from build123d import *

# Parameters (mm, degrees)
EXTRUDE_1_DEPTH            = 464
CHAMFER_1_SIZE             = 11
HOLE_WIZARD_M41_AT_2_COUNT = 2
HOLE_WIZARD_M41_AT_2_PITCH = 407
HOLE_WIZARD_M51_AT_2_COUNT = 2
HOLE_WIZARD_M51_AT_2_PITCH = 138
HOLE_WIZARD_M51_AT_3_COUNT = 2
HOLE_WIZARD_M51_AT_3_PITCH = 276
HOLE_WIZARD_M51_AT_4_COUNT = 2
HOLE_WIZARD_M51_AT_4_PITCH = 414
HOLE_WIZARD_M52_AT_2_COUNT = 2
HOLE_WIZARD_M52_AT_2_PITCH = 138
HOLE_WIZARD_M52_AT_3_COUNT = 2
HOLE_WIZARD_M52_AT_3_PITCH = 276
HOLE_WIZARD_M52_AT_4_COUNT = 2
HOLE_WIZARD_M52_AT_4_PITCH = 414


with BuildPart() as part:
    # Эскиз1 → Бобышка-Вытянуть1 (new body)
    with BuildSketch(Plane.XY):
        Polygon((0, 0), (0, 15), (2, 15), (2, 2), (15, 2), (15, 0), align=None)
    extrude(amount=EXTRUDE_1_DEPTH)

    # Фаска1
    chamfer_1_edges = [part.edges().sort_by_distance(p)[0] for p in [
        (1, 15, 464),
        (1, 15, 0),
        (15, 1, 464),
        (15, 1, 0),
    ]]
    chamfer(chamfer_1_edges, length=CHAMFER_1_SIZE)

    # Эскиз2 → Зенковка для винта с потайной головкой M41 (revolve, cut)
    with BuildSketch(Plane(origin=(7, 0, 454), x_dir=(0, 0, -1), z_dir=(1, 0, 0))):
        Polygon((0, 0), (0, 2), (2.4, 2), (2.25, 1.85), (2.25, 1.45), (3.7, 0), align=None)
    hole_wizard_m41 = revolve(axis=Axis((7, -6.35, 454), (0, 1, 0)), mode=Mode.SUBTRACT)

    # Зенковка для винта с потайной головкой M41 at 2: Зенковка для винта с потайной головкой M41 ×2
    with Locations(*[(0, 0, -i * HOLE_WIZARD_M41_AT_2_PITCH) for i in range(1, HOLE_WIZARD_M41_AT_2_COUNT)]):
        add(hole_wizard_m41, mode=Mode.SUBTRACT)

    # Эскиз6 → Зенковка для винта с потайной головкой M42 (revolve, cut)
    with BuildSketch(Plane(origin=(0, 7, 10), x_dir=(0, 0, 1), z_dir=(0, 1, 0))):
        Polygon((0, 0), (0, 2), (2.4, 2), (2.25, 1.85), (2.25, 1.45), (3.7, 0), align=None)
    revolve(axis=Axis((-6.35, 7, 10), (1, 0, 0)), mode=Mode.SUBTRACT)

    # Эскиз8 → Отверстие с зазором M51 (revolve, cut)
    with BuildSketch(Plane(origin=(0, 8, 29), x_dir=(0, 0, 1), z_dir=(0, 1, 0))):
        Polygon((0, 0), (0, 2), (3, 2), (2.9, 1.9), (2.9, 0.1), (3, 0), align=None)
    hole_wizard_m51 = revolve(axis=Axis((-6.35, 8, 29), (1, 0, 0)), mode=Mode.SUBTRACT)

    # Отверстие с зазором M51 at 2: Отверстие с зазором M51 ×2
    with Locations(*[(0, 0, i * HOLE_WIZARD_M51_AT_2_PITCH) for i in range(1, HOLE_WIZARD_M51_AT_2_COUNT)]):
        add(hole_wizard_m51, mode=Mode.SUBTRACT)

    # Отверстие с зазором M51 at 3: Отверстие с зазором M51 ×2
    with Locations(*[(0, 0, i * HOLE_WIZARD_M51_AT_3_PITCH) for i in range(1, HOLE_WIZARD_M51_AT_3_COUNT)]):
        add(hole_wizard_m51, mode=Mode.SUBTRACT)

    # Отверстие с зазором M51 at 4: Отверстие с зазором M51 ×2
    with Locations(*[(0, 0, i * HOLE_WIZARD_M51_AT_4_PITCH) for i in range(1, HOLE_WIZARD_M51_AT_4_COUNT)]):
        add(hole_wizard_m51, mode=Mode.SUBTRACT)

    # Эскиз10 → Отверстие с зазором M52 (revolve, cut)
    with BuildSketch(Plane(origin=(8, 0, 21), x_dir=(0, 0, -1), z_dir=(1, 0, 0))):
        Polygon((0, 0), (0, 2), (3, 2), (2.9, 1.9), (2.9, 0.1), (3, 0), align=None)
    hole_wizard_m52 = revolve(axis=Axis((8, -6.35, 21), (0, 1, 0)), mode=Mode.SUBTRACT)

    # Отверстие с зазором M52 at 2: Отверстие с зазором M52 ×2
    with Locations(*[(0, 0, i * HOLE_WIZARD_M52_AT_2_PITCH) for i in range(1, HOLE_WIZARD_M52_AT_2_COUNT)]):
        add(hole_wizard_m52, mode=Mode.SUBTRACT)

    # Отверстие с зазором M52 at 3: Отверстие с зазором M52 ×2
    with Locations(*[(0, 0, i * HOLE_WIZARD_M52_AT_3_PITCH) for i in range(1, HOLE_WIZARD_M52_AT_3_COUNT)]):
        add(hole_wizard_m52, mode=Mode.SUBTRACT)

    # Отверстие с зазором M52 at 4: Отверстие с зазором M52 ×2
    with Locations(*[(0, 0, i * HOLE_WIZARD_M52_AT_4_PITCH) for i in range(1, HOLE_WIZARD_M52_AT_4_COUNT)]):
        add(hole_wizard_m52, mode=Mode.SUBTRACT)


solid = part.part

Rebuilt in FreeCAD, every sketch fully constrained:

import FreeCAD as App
import Part
import Sketcher
Q = App.Units.Quantity


def edges_at(feature, points):
    """Names of the edges that pass closest to the given points."""
    edges = feature.Shape.Edges
    near = lambda p: min(range(len(edges)), key=lambda i: edges[i].distToShape(Part.Vertex(*p))[0])
    return sorted({f"Edge{near(p) + 1}" for p in points})

doc = App.newDocument("Part")
body = doc.addObject("PartDesign::Body", "Body")

sketch1 = body.newObject("Sketcher::SketchObject", "Sketch")
sketch1.AttachmentSupport = (doc.getObject("XY_Plane"), [""])
sketch1.MapMode = "FlatFace"
sketch1.addGeometry([
    Part.LineSegment(App.Vector(0, 15, 0), App.Vector(0, 0, 0)),
    Part.LineSegment(App.Vector(0, 0, 0), App.Vector(15, 0, 0)),
    Part.LineSegment(App.Vector(15, 0, 0), App.Vector(15, 2, 0)),
    Part.LineSegment(App.Vector(15, 2, 0), App.Vector(2, 2, 0)),
    Part.LineSegment(App.Vector(2, 2, 0), App.Vector(2, 15, 0)),
    Part.LineSegment(App.Vector(2, 15, 0), App.Vector(0, 15, 0)),
], False)
sketch1.addConstraint([
    Sketcher.Constraint("Coincident", 0, 2, 1, 1),
    Sketcher.Constraint("Coincident", 1, 2, 2, 1),
    Sketcher.Constraint("Coincident", 2, 2, 3, 1),
    Sketcher.Constraint("Coincident", 3, 2, 4, 1),
    Sketcher.Constraint("Coincident", 4, 2, 5, 1),
    Sketcher.Constraint("Coincident", 5, 2, 0, 1),
    Sketcher.Constraint("Vertical", 0),
    Sketcher.Constraint("Horizontal", 1),
    Sketcher.Constraint("Vertical", 2),
    Sketcher.Constraint("Horizontal", 3),
    Sketcher.Constraint("Vertical", 4),
    Sketcher.Constraint("Horizontal", 5),
    Sketcher.Constraint("Coincident", 0, 2, -1, 1),
    Sketcher.Constraint("Equal", 1, 0),
    Sketcher.Constraint("Equal", 5, 2),
    Sketcher.Constraint("DistanceX", 1, 1, 1, 2, Q("15 mm")),
    Sketcher.Constraint("DistanceX", 3, 2, 3, 1, Q("13 mm")),
])
pad1 = body.newObject("PartDesign::Pad", "Pad")
pad1.Profile = sketch1
pad1.Length = 464
doc.recompute()

chamfer = body.newObject("PartDesign::Chamfer", "Chamfer")
chamfer.Base = (pad1, edges_at(pad1, [
    (1, 15, 464),
    (1, 15, 0),
    (15, 1, 464),
    (15, 1, 0),
]))
chamfer.Size = 11

sketch2 = body.newObject("Sketcher::SketchObject", "Sketch001")
sketch2.AttachmentSupport = (doc.getObject("YZ_Plane"), [""])
sketch2.MapMode = "FlatFace"
sketch2.AttachmentOffset = App.Placement(App.Vector(0, 0, 7), App.Rotation())
sketch2.addGeometry([
    Part.LineSegment(App.Vector(2, 454, 0), App.Vector(0, 454, 0)),
    Part.LineSegment(App.Vector(0, 454, 0), App.Vector(0, 450.3, 0)),
    Part.LineSegment(App.Vector(0, 450.3, 0), App.Vector(1.45, 451.75, 0)),
    Part.LineSegment(App.Vector(1.45, 451.75, 0), App.Vector(1.85, 451.75, 0)),
    Part.LineSegment(App.Vector(1.85, 451.75, 0), App.Vector(2, 451.6, 0)),
    Part.LineSegment(App.Vector(2, 451.6, 0), App.Vector(2, 454, 0)),
], False)
sketch2.addGeometry(Part.LineSegment(App.Vector(0, 454, 0), App.Vector(2, 454, 0)), True)
sketch2.addConstraint([
    Sketcher.Constraint("Coincident", 0, 2, 1, 1),
    Sketcher.Constraint("Coincident", 1, 2, 2, 1),
    Sketcher.Constraint("Coincident", 2, 2, 3, 1),
    Sketcher.Constraint("Coincident", 3, 2, 4, 1),
    Sketcher.Constraint("Coincident", 4, 2, 5, 1),
    Sketcher.Constraint("Coincident", 5, 2, 0, 1),
    Sketcher.Constraint("Horizontal", 0),
    Sketcher.Constraint("Vertical", 1),
    Sketcher.Constraint("Horizontal", 3),
    Sketcher.Constraint("Vertical", 5),
    Sketcher.Constraint("Horizontal", 6),
    Sketcher.Constraint("Coincident", 6, 1, 0, 2),
    Sketcher.Constraint("PointOnObject", 0, 2, -2),
    Sketcher.Constraint("Perpendicular", 2, 4),
    Sketcher.Constraint("Vertical", 4, 2, 6, 2),
    Sketcher.Constraint("DistanceX", 0, 2, 0, 1, Q("2 mm")),
    Sketcher.Constraint("Angle", 2, Q("45 deg")),
    Sketcher.Constraint("DistanceX", 3, 1, 3, 2, Q("0.4 mm")),
    Sketcher.Constraint("DistanceY", 1, 2, 1, 1, Q("3.7 mm")),
    Sketcher.Constraint("DistanceY", 5, 1, 5, 2, Q("2.4 mm")),
    Sketcher.Constraint("DistanceY", -1, 1, 0, 2, Q("454 mm")),
])
groove = body.newObject("PartDesign::Groove", "Groove")
groove.Profile = sketch2
groove.ReferenceAxis = (sketch2, ["Axis0"])
groove.Angle = 360
doc.recompute()

linearpattern = body.newObject("PartDesign::LinearPattern", "LinearPattern")
linearpattern.Originals = [groove]
linearpattern.Direction = (doc.getObject("Z_Axis"), [""])
linearpattern.Mode = "offset"
linearpattern.Offset = 407
linearpattern.Occurrences = 2
linearpattern.Reversed = True
body.Tip = linearpattern

sketch3 = body.newObject("Sketcher::SketchObject", "Sketch002")
sketch3.AttachmentSupport = (doc.getObject("XZ_Plane"), [""])
sketch3.MapMode = "FlatFace"
sketch3.AttachmentOffset = App.Placement(App.Vector(0, 0, -7), App.Rotation())
sketch3.addGeometry([
    Part.LineSegment(App.Vector(2, 10, 0), App.Vector(0, 10, 0)),
    Part.LineSegment(App.Vector(0, 10, 0), App.Vector(0, 13.7, 0)),
    Part.LineSegment(App.Vector(0, 13.7, 0), App.Vector(1.45, 12.25, 0)),
    Part.LineSegment(App.Vector(1.45, 12.25, 0), App.Vector(1.85, 12.25, 0)),
    Part.LineSegment(App.Vector(1.85, 12.25, 0), App.Vector(2, 12.4, 0)),
    Part.LineSegment(App.Vector(2, 12.4, 0), App.Vector(2, 10, 0)),
], False)
sketch3.addGeometry(Part.LineSegment(App.Vector(0, 10, 0), App.Vector(2, 10, 0)), True)
sketch3.addConstraint([
    Sketcher.Constraint("Coincident", 0, 2, 1, 1),
    Sketcher.Constraint("Coincident", 1, 2, 2, 1),
    Sketcher.Constraint("Coincident", 2, 2, 3, 1),
    Sketcher.Constraint("Coincident", 3, 2, 4, 1),
    Sketcher.Constraint("Coincident", 4, 2, 5, 1),
    Sketcher.Constraint("Coincident", 5, 2, 0, 1),
    Sketcher.Constraint("Horizontal", 0),
    Sketcher.Constraint("Vertical", 1),
    Sketcher.Constraint("Horizontal", 3),
    Sketcher.Constraint("Vertical", 5),
    Sketcher.Constraint("Horizontal", 6),
    Sketcher.Constraint("Coincident", 6, 1, 0, 2),
    Sketcher.Constraint("PointOnObject", 0, 2, -2),
    Sketcher.Constraint("Perpendicular", 2, 4),
    Sketcher.Constraint("Vertical", 4, 2, 6, 2),
    Sketcher.Constraint("DistanceX", 0, 2, 0, 1, Q("2 mm")),
    Sketcher.Constraint("Angle", 2, Q("-45 deg")),
    Sketcher.Constraint("DistanceX", 3, 1, 3, 2, Q("0.4 mm")),
    Sketcher.Constraint("DistanceY", 1, 1, 1, 2, Q("3.7 mm")),
    Sketcher.Constraint("DistanceY", 5, 2, 5, 1, Q("2.4 mm")),
    Sketcher.Constraint("DistanceY", -1, 1, 0, 2, Q("10 mm")),
])
groove2 = body.newObject("PartDesign::Groove", "Groove001")
groove2.Profile = sketch3
groove2.ReferenceAxis = (sketch3, ["Axis0"])
groove2.Angle = 360

sketch4 = body.newObject("Sketcher::SketchObject", "Sketch003")
sketch4.AttachmentSupport = (doc.getObject("XZ_Plane"), [""])
sketch4.MapMode = "FlatFace"
sketch4.AttachmentOffset = App.Placement(App.Vector(0, 0, -8), App.Rotation())
sketch4.addGeometry([
    Part.LineSegment(App.Vector(2, 29, 0), App.Vector(0, 29, 0)),
    Part.LineSegment(App.Vector(0, 29, 0), App.Vector(0, 32, 0)),
    Part.LineSegment(App.Vector(0, 32, 0), App.Vector(0.1, 31.9, 0)),
    Part.LineSegment(App.Vector(0.1, 31.9, 0), App.Vector(1.9, 31.9, 0)),
    Part.LineSegment(App.Vector(1.9, 31.9, 0), App.Vector(2, 32, 0)),
    Part.LineSegment(App.Vector(2, 32, 0), App.Vector(2, 29, 0)),
], False)
sketch4.addGeometry(Part.LineSegment(App.Vector(0, 29, 0), App.Vector(2, 29, 0)), True)
sketch4.addConstraint([
    Sketcher.Constraint("Coincident", 0, 2, 1, 1),
    Sketcher.Constraint("Coincident", 1, 2, 2, 1),
    Sketcher.Constraint("Coincident", 2, 2, 3, 1),
    Sketcher.Constraint("Coincident", 3, 2, 4, 1),
    Sketcher.Constraint("Coincident", 4, 2, 5, 1),
    Sketcher.Constraint("Coincident", 5, 2, 0, 1),
    Sketcher.Constraint("Horizontal", 0),
    Sketcher.Constraint("Vertical", 1),
    Sketcher.Constraint("Horizontal", 3),
    Sketcher.Constraint("Vertical", 5),
    Sketcher.Constraint("Horizontal", 6),
    Sketcher.Constraint("Coincident", 6, 1, 0, 2),
    Sketcher.Constraint("PointOnObject", 0, 2, -2),
    Sketcher.Constraint("Perpendicular", 2, 4),
    Sketcher.Constraint("Horizontal", 1, 2, 4, 2),
    Sketcher.Constraint("Vertical", 4, 2, 6, 2),
    Sketcher.Constraint("Equal", 2, 4),
    Sketcher.Constraint("DistanceX", 0, 2, 0, 1, Q("2 mm")),
    Sketcher.Constraint("DistanceY", 1, 1, 1, 2, Q("3 mm")),
    Sketcher.Constraint("DistanceX", 3, 1, 3, 2, Q("1.8 mm")),
    Sketcher.Constraint("DistanceY", -1, 1, 0, 2, Q("29 mm")),
])
groove3 = body.newObject("PartDesign::Groove", "Groove002")
groove3.Profile = sketch4
groove3.ReferenceAxis = (sketch4, ["Axis0"])
groove3.Angle = 360
doc.recompute()

linearpattern2 = body.newObject("PartDesign::LinearPattern", "LinearPattern001")
linearpattern2.Originals = [groove3]
linearpattern2.Direction = (doc.getObject("Z_Axis"), [""])
linearpattern2.Mode = "offset"
linearpattern2.Offset = 138
linearpattern2.Occurrences = 2
body.Tip = linearpattern2
doc.recompute()

linearpattern3 = body.newObject("PartDesign::LinearPattern", "LinearPattern002")
linearpattern3.Originals = [groove3]
linearpattern3.Direction = (doc.getObject("Z_Axis"), [""])
linearpattern3.Mode = "offset"
linearpattern3.Offset = 276
linearpattern3.Occurrences = 2
body.Tip = linearpattern3
doc.recompute()

linearpattern4 = body.newObject("PartDesign::LinearPattern", "LinearPattern003")
linearpattern4.Originals = [groove3]
linearpattern4.Direction = (doc.getObject("Z_Axis"), [""])
linearpattern4.Mode = "offset"
linearpattern4.Offset = 414
linearpattern4.Occurrences = 2
body.Tip = linearpattern4

sketch5 = body.newObject("Sketcher::SketchObject", "Sketch004")
sketch5.AttachmentSupport = (doc.getObject("YZ_Plane"), [""])
sketch5.MapMode = "FlatFace"
sketch5.AttachmentOffset = App.Placement(App.Vector(0, 0, 8), App.Rotation())
sketch5.addGeometry([
    Part.LineSegment(App.Vector(2, 21, 0), App.Vector(0, 21, 0)),
    Part.LineSegment(App.Vector(0, 21, 0), App.Vector(0, 18, 0)),
    Part.LineSegment(App.Vector(0, 18, 0), App.Vector(0.1, 18.1, 0)),
    Part.LineSegment(App.Vector(0.1, 18.1, 0), App.Vector(1.9, 18.1, 0)),
    Part.LineSegment(App.Vector(1.9, 18.1, 0), App.Vector(2, 18, 0)),
    Part.LineSegment(App.Vector(2, 18, 0), App.Vector(2, 21, 0)),
], False)
sketch5.addGeometry(Part.LineSegment(App.Vector(0, 21, 0), App.Vector(2, 21, 0)), True)
sketch5.addConstraint([
    Sketcher.Constraint("Coincident", 0, 2, 1, 1),
    Sketcher.Constraint("Coincident", 1, 2, 2, 1),
    Sketcher.Constraint("Coincident", 2, 2, 3, 1),
    Sketcher.Constraint("Coincident", 3, 2, 4, 1),
    Sketcher.Constraint("Coincident", 4, 2, 5, 1),
    Sketcher.Constraint("Coincident", 5, 2, 0, 1),
    Sketcher.Constraint("Horizontal", 0),
    Sketcher.Constraint("Vertical", 1),
    Sketcher.Constraint("Horizontal", 3),
    Sketcher.Constraint("Vertical", 5),
    Sketcher.Constraint("Horizontal", 6),
    Sketcher.Constraint("Coincident", 6, 1, 0, 2),
    Sketcher.Constraint("PointOnObject", 0, 2, -2),
    Sketcher.Constraint("Perpendicular", 2, 4),
    Sketcher.Constraint("Horizontal", 1, 2, 4, 2),
    Sketcher.Constraint("Vertical", 4, 2, 6, 2),
    Sketcher.Constraint("Equal", 2, 4),
    Sketcher.Constraint("DistanceX", 0, 2, 0, 1, Q("2 mm")),
    Sketcher.Constraint("DistanceY", 1, 2, 1, 1, Q("3 mm")),
    Sketcher.Constraint("DistanceX", 3, 1, 3, 2, Q("1.8 mm")),
    Sketcher.Constraint("DistanceY", -1, 1, 0, 2, Q("21 mm")),
])
groove4 = body.newObject("PartDesign::Groove", "Groove003")
groove4.Profile = sketch5
groove4.ReferenceAxis = (sketch5, ["Axis0"])
groove4.Angle = 360
doc.recompute()

linearpattern5 = body.newObject("PartDesign::LinearPattern", "LinearPattern004")
linearpattern5.Originals = [groove4]
linearpattern5.Direction = (doc.getObject("Z_Axis"), [""])
linearpattern5.Mode = "offset"
linearpattern5.Offset = 138
linearpattern5.Occurrences = 2
body.Tip = linearpattern5
doc.recompute()

linearpattern6 = body.newObject("PartDesign::LinearPattern", "LinearPattern005")
linearpattern6.Originals = [groove4]
linearpattern6.Direction = (doc.getObject("Z_Axis"), [""])
linearpattern6.Mode = "offset"
linearpattern6.Offset = 276
linearpattern6.Occurrences = 2
body.Tip = linearpattern6
doc.recompute()

linearpattern7 = body.newObject("PartDesign::LinearPattern", "LinearPattern006")
linearpattern7.Originals = [groove4]
linearpattern7.Direction = (doc.getObject("Z_Axis"), [""])
linearpattern7.Mode = "offset"
linearpattern7.Offset = 414
linearpattern7.Occurrences = 2
body.Tip = linearpattern7

doc.recompute()
